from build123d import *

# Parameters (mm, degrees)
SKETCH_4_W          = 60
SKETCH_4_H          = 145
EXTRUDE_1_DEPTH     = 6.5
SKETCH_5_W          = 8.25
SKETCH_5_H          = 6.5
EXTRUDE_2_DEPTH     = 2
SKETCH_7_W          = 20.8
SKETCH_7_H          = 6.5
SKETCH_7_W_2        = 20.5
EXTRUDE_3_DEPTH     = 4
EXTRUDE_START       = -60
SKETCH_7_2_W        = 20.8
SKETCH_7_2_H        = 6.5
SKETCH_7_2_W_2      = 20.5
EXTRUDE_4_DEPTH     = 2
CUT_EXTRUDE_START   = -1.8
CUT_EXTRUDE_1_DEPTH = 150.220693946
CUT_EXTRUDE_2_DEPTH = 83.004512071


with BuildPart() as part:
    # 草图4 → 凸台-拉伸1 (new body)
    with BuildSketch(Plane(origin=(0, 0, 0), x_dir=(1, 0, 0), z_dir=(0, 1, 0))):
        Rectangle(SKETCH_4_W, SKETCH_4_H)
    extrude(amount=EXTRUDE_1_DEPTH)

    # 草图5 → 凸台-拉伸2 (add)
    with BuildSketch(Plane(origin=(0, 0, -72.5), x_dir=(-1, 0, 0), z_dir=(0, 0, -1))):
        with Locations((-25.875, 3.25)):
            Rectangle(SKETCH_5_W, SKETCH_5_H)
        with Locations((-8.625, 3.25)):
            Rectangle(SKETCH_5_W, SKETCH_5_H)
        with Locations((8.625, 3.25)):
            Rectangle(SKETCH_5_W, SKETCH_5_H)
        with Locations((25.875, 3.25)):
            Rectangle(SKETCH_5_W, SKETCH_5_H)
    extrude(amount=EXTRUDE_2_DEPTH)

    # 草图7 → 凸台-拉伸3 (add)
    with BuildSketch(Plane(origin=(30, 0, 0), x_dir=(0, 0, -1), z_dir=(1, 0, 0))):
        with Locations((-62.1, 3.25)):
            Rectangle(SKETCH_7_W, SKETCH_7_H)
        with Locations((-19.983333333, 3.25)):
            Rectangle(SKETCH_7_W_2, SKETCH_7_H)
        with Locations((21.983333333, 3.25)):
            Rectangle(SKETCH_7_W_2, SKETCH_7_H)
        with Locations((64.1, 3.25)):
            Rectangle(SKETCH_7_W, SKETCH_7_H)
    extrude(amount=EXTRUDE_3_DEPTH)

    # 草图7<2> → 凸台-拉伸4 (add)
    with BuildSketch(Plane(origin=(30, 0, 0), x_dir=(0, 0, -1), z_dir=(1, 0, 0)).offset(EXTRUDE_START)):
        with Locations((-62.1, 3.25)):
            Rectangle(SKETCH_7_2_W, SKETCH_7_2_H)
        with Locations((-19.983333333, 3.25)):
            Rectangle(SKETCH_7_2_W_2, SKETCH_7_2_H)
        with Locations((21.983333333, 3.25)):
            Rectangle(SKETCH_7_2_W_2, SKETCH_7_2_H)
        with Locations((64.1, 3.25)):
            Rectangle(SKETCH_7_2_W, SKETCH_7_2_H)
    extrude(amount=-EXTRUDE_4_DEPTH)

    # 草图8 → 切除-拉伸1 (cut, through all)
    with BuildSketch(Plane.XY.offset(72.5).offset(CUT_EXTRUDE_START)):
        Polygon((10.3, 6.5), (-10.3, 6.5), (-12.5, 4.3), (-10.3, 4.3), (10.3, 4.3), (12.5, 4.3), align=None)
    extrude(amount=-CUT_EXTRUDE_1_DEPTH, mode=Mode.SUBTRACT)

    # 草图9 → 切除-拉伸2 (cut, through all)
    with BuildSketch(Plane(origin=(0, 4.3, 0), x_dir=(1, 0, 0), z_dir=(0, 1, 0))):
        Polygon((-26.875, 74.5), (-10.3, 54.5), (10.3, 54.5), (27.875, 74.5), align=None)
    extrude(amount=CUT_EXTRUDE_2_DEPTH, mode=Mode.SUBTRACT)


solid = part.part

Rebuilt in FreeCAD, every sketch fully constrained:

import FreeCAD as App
import Part
import Sketcher

V = App.Vector


def add_polygon(sketch, points):
    """Adds a closed chain of lines whose ends are joined by coincident constraints."""
    first, n = sketch.GeometryCount, len(points)
    for a, b in zip(points, points[1:] + points[:1]):
        sketch.addGeometry(Part.LineSegment(App.Vector(*a, 0), App.Vector(*b, 0)), False)
    for i in range(n):
        sketch.addConstraint(Sketcher.Constraint("Coincident", first + i, 2, first + (i + 1) % n, 1))

doc = App.newDocument("Part")
body = doc.addObject("PartDesign::Body", "Body")

sketch1 = body.newObject("Sketcher::SketchObject", "Sketch")
sketch1.AttachmentSupport = (doc.getObject("XZ_Plane"), [""])
sketch1.MapMode = "FlatFace"
add_polygon(sketch1, [(-30, -72.5), (-30, 72.5), (30, 72.5), (30, -72.5)])
sketch1.addConstraint([
    Sketcher.Constraint("Vertical", 0),
    Sketcher.Constraint("Horizontal", 1),
    Sketcher.Constraint("Vertical", 2),
    Sketcher.Constraint("Horizontal", 3),
    Sketcher.Constraint("Symmetric", 0, 2, 2, 2, -1, 1),
    Sketcher.Constraint("DistanceX", 1, 1, 1, 2, 60.0),
    Sketcher.Constraint("DistanceY", 0, 1, 0, 2, 145.0),
])
pad1 = body.newObject("PartDesign::Pad", "Pad")
pad1.Profile = sketch1
pad1.Length = 6.5
pad1.Reversed = True

sketch2 = body.newObject("Sketcher::SketchObject", "Sketch001")
sketch2.AttachmentSupport = (doc.getObject("XY_Plane"), [""])
sketch2.MapMode = "FlatFace"
sketch2.AttachmentOffset = App.Placement(V(0, 0, -72.5), App.Rotation())
add_polygon(sketch2, [(30, 6.5), (30, 0), (21.75, 0), (21.75, 6.5)])
add_polygon(sketch2, [(12.75, 6.5), (12.75, 0), (4.5, 0), (4.5, 6.5)])
add_polygon(sketch2, [(-4.5, 6.5), (-4.5, 0), (-12.75, 0), (-12.75, 6.5)])
add_polygon(sketch2, [(-21.75, 6.5), (-21.75, 0), (-30, 0), (-30, 6.5)])
sketch2.addConstraint([
    Sketcher.Constraint("Vertical", 0),
    Sketcher.Constraint("Horizontal", 1),
    Sketcher.Constraint("Vertical", 2),
    Sketcher.Constraint("Horizontal", 3),
    Sketcher.Constraint("Vertical", 4),
    Sketcher.Constraint("Horizontal", 5),
    Sketcher.Constraint("Vertical", 6),
    Sketcher.Constraint("Horizontal", 7),
    Sketcher.Constraint("Vertical", 8),
    Sketcher.Constraint("Horizontal", 9),
    Sketcher.Constraint("Vertical", 10),
    Sketcher.Constraint("Horizontal", 11),
    Sketcher.Constraint("Vertical", 12),
    Sketcher.Constraint("Horizontal", 13),
    Sketcher.Constraint("Vertical", 14),
    Sketcher.Constraint("Horizontal", 15),
    Sketcher.Constraint("Symmetric", 5, 2, 8, 2, -1, 1),
    Sketcher.Constraint("Symmetric", 1, 2, 12, 2, -1, 1),
    Sketcher.Constraint("Symmetric", 4, 2, 9, 2, -2),
    Sketcher.Constraint("Symmetric", 0, 2, 13, 2, -2),
    Sketcher.Constraint("Horizontal", 3, 2, 6, 2),
    Sketcher.Constraint("Horizontal", 7, 2, 10, 2),
    Sketcher.Constraint("Horizontal", 11, 2, 14, 2),
    Sketcher.Constraint("Equal", 3, 5),
    Sketcher.Constraint("DistanceY", 0, 2, 0, 1, 6.5),
    Sketcher.Constraint("DistanceX", -1, 1, 0, 2, 30.0),
    Sketcher.Constraint("DistanceX", 4, 2, 1, 2, 9.0),
    Sketcher.Constraint("DistanceX", 8, 2, 5, 2, 9.0),
])
pad2 = body.newObject("PartDesign::Pad", "Pad001")
pad2.Profile = sketch2
pad2.Length = 2
pad2.Reversed = True

sketch3 = body.newObject("Sketcher::SketchObject", "Sketch002")
sketch3.AttachmentSupport = (doc.getObject("YZ_Plane"), [""])
sketch3.MapMode = "FlatFace"
sketch3.AttachmentOffset = App.Placement(V(0, 0, 30), App.Rotation())
add_polygon(sketch3, [(6.5, 72.5), (0, 72.5), (0, 51.7), (6.5, 51.7)])
add_polygon(sketch3, [(6.5, 30.233333), (0, 30.233333), (0, 9.733333), (6.5, 9.733333)])
add_polygon(sketch3, [(6.5, -11.733333), (0, -11.733333), (0, -32.233333), (6.5, -32.233333)])
add_polygon(sketch3, [(6.5, -53.7), (0, -53.7), (0, -74.5), (6.5, -74.5)])
sketch3.addConstraint([
    Sketcher.Constraint("Horizontal", 0),
    Sketcher.Constraint("Vertical", 1),
    Sketcher.Constraint("Horizontal", 2),
    Sketcher.Constraint("Vertical", 3),
    Sketcher.Constraint("Horizontal", 4),
    Sketcher.Constraint("Vertical", 5),
    Sketcher.Constraint("Horizontal", 6),
    Sketcher.Constraint("Vertical", 7),
    Sketcher.Constraint("Horizontal", 8),
    Sketcher.Constraint("Vertical", 9),
    Sketcher.Constraint("Horizontal", 10),
    Sketcher.Constraint("Vertical", 11),
    Sketcher.Constraint("Horizontal", 12),
    Sketcher.Constraint("Vertical", 13),
    Sketcher.Constraint("Horizontal", 14),
    Sketcher.Constraint("Vertical", 15),
    Sketcher.Constraint("PointOnObject", 0, 2, -2),
    Sketcher.Constraint("PointOnObject", 4, 2, -2),
    Sketcher.Constraint("PointOnObject", 8, 2, -2),
    Sketcher.Constraint("PointOnObject", 12, 2, -2),
    Sketcher.Constraint("Vertical", 3, 2, 6, 2),
    Sketcher.Constraint("Vertical", 7, 2, 10, 2),
    Sketcher.Constraint("Vertical", 11, 2, 14, 2),
    Sketcher.Constraint("Equal", 7, 9),
    Sketcher.Constraint("Equal", 3, 13),
    Sketcher.Constraint("DistanceX", 0, 2, 0, 1, 6.5),
    Sketcher.Constraint("DistanceY", 1, 2, 1, 1, 20.8),
    Sketcher.Constraint("DistanceY", 5, 2, 5, 1, 20.5),
    Sketcher.Constraint("DistanceY", -1, 1, 0, 2, 72.5),
    Sketcher.Constraint("DistanceY", 12, 2, -1, 1, 53.7),
    Sketcher.Constraint("DistanceY", -1, 1, 4, 2, 30.233333),
    Sketcher.Constraint("DistanceY", 8, 2, -1, 1, 11.733333),
])
pad3 = body.newObject("PartDesign::Pad", "Pad002")
pad3.Profile = sketch3
pad3.Length = 4

sketch4 = body.newObject("Sketcher::SketchObject", "Sketch003")
sketch4.AttachmentSupport = (doc.getObject("YZ_Plane"), [""])
sketch4.MapMode = "FlatFace"
sketch4.AttachmentOffset = App.Placement(V(0, 0, -30), App.Rotation())
add_polygon(sketch4, [(6.5, 72.5), (0, 72.5), (0, 51.7), (6.5, 51.7)])
add_polygon(sketch4, [(6.5, 30.233333), (0, 30.233333), (0, 9.733333), (6.5, 9.733333)])
add_polygon(sketch4, [(6.5, -11.733333), (0, -11.733333), (0, -32.233333), (6.5, -32.233333)])
add_polygon(sketch4, [(6.5, -53.7), (0, -53.7), (0, -74.5), (6.5, -74.5)])
sketch4.addConstraint([
    Sketcher.Constraint("Horizontal", 0),
    Sketcher.Constraint("Vertical", 1),
    Sketcher.Constraint("Horizontal", 2),
    Sketcher.Constraint("Vertical", 3),
    Sketcher.Constraint("Horizontal", 4),
    Sketcher.Constraint("Vertical", 5),
    Sketcher.Constraint("Horizontal", 6),
    Sketcher.Constraint("Vertical", 7),
    Sketcher.Constraint("Horizontal", 8),
    Sketcher.Constraint("Vertical", 9),
    Sketcher.Constraint("Horizontal", 10),
    Sketcher.Constraint("Vertical", 11),
    Sketcher.Constraint("Horizontal", 12),
    Sketcher.Constraint("Vertical", 13),
    Sketcher.Constraint("Horizontal", 14),
    Sketcher.Constraint("Vertical", 15),
    Sketcher.Constraint("PointOnObject", 0, 2, -2),
    Sketcher.Constraint("PointOnObject", 4, 2, -2),
    Sketcher.Constraint("PointOnObject", 8, 2, -2),
    Sketcher.Constraint("PointOnObject", 12, 2, -2),
    Sketcher.Constraint("Vertical", 3, 2, 6, 2),
    Sketcher.Constraint("Vertical", 7, 2, 10, 2),
    Sketcher.Constraint("Vertical", 11, 2, 14, 2),
    Sketcher.Constraint("Equal", 7, 9),
    Sketcher.Constraint("Equal", 3, 13),
    Sketcher.Constraint("DistanceX", 0, 2, 0, 1, 6.5),
    Sketcher.Constraint("DistanceY", 1, 2, 1, 1, 20.8),
    Sketcher.Constraint("DistanceY", 5, 2, 5, 1, 20.5),
    Sketcher.Constraint("DistanceY", -1, 1, 0, 2, 72.5),
    Sketcher.Constraint("DistanceY", 12, 2, -1, 1, 53.7),
    Sketcher.Constraint("DistanceY", -1, 1, 4, 2, 30.233333),
    Sketcher.Constraint("DistanceY", 8, 2, -1, 1, 11.733333),
])
pad4 = body.newObject("PartDesign::Pad", "Pad003")
pad4.Profile = sketch4
pad4.Length = 2
pad4.Reversed = True

sketch5 = body.newObject("Sketcher::SketchObject", "Sketch004")
sketch5.AttachmentSupport = (doc.getObject("XY_Plane"), [""])
sketch5.MapMode = "FlatFace"
sketch5.AttachmentOffset = App.Placement(V(0, 0, 70.7), App.Rotation())
add_polygon(sketch5, [(10.3, 6.5), (-10.3, 6.5), (-12.5, 4.3), (12.5, 4.3)])
sketch5.addConstraint([
    Sketcher.Constraint("Horizontal", 0),
    Sketcher.Constraint("Horizontal", 2),
    Sketcher.Constraint("Perpendicular", 1, 3),
    Sketcher.Constraint("Equal", 1, 3),
    Sketcher.Constraint("DistanceX", 2, 1, 2, 2, 25.0),
    Sketcher.Constraint("DistanceX", 0, 2, 0, 1, 20.6),
    Sketcher.Constraint("DistanceX", 0, 2, -1, 1, 10.3),
    Sketcher.Constraint("DistanceY", -1, 1, 0, 2, 6.5),
])
pocket1 = body.newObject("PartDesign::Pocket", "Pocket")
pocket1.Profile = sketch5
pocket1.Type = "ThroughAll"

sketch6 = body.newObject("Sketcher::SketchObject", "Sketch005")
sketch6.AttachmentSupport = (doc.getObject("XZ_Plane"), [""])
sketch6.MapMode = "FlatFace"
sketch6.AttachmentOffset = App.Placement(V(0, 0, -4.3), App.Rotation())
add_polygon(sketch6, [(-26.875, -74.5), (-10.3, -54.5), (10.3, -54.5), (27.875, -74.5)])
sketch6.addConstraint([
    Sketcher.Constraint("Horizontal", 1),
    Sketcher.Constraint("Horizontal", 3),
    Sketcher.Constraint("DistanceX", 1, 1, 1, 2, 20.6),
    Sketcher.Constraint("DistanceY", 2, 2, 1, 2, 20.0),
    Sketcher.Constraint("DistanceX", 3, 2, 3, 1, 54.75),
    Sketcher.Constraint("DistanceX", 0, 2, -1, 1, 10.3),
    Sketcher.Constraint("DistanceY", 0, 2, -1, 1, 54.5),
    Sketcher.Constraint("DistanceX", -1, 1, 2, 2, 27.875),
])
pocket2 = body.newObject("PartDesign::Pocket", "Pocket001")
pocket2.Profile = sketch6
pocket2.Type = "ThroughAll"

doc.recompute()
